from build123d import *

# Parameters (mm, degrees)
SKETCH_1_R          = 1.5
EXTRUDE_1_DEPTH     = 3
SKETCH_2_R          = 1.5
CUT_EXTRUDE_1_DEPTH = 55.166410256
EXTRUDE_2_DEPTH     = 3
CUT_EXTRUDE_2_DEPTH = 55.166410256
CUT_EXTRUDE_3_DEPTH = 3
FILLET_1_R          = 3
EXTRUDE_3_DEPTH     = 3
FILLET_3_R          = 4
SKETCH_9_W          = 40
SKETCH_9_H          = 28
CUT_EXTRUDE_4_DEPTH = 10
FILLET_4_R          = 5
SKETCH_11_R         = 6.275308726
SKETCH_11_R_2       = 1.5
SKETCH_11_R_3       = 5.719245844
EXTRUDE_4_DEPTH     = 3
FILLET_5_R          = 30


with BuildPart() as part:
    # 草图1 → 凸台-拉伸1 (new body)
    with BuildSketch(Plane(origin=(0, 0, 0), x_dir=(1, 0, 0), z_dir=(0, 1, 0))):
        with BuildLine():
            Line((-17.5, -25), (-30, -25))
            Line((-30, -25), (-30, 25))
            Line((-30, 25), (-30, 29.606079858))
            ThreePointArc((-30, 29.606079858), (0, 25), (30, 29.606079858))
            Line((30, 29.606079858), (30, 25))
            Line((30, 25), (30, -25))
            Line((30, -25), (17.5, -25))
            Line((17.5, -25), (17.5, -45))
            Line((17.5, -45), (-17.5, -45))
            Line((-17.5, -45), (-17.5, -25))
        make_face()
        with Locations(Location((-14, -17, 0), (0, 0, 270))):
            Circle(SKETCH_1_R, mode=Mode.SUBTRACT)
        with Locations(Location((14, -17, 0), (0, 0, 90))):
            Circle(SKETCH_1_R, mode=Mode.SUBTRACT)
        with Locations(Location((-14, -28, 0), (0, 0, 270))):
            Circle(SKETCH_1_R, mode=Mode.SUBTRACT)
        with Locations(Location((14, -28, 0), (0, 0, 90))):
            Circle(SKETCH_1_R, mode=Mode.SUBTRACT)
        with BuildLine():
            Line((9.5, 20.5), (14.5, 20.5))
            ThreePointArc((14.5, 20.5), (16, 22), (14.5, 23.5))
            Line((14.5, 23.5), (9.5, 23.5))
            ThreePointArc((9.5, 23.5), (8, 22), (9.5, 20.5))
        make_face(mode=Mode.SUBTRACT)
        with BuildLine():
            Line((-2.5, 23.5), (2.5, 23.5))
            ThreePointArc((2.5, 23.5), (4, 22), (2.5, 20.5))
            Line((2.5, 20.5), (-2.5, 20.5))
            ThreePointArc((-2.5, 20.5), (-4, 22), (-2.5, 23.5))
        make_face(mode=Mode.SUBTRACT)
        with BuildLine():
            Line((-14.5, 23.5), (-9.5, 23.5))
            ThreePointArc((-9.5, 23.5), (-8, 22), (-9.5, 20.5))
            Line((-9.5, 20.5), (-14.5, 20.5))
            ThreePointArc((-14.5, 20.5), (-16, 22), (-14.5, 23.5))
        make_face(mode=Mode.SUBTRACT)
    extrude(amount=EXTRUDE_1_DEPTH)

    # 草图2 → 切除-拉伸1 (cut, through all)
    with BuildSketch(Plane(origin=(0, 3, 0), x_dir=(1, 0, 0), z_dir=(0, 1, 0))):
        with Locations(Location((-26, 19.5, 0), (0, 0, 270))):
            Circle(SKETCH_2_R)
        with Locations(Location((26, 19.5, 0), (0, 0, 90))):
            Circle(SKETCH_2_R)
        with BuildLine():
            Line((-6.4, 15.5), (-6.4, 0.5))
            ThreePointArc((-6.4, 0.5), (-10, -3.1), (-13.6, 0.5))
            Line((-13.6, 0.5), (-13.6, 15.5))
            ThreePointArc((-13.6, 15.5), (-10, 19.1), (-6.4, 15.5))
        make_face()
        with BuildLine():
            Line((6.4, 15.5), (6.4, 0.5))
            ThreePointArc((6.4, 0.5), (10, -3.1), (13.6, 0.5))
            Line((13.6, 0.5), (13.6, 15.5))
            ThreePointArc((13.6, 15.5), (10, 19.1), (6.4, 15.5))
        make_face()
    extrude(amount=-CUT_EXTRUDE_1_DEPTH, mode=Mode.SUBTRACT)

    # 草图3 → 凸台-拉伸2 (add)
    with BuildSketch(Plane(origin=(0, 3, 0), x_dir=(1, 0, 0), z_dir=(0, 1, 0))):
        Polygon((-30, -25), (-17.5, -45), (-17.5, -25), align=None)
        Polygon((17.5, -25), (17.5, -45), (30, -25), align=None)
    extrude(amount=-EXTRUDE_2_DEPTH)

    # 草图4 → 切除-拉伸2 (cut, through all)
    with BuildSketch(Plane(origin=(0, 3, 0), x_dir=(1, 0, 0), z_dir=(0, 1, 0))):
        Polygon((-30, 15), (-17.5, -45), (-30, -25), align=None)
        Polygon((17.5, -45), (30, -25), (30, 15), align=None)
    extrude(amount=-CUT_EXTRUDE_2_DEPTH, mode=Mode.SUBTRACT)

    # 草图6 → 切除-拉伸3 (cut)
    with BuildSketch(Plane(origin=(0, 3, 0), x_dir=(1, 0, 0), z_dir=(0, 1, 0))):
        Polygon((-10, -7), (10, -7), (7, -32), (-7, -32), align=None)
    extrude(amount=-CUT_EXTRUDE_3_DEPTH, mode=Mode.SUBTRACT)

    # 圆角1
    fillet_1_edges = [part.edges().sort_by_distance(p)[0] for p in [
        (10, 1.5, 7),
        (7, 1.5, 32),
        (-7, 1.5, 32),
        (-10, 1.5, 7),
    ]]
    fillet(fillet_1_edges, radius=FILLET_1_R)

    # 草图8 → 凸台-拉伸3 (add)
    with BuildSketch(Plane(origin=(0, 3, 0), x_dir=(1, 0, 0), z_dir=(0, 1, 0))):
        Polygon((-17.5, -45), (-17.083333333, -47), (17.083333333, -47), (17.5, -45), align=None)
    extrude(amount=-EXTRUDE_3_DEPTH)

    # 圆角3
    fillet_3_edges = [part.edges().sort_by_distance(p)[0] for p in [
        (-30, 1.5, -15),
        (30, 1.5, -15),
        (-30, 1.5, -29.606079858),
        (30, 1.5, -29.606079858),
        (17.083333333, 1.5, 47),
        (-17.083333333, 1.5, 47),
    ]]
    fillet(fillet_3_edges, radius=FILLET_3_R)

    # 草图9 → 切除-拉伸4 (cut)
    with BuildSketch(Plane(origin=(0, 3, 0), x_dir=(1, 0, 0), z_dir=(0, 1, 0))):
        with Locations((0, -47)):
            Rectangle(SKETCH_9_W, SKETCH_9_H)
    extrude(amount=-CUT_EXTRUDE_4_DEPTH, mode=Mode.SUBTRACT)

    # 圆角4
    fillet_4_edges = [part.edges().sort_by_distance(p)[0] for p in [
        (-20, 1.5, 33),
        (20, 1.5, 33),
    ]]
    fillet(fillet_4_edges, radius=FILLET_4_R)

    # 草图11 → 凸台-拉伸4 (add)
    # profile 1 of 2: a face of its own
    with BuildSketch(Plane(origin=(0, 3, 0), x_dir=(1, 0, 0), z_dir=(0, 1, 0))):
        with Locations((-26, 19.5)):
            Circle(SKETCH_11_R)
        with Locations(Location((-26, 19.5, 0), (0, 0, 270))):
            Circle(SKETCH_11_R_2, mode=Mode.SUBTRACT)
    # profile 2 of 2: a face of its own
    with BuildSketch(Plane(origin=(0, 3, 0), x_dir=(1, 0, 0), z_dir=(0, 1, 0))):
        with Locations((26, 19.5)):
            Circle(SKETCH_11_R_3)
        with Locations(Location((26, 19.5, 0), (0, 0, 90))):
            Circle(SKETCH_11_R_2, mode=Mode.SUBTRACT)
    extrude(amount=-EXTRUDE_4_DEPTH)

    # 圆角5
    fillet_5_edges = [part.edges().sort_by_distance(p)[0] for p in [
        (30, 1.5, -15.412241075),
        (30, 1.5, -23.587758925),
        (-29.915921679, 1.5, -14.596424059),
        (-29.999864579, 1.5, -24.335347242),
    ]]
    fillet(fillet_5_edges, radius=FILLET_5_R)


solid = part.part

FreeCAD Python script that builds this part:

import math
import FreeCAD as App
import Part
import Sketcher
from FreeCAD import Vector
Q = App.Units.Quantity


def edges_at(feature, points):
    """Names of the edges that pass closest to the given points."""
    edges = feature.Shape.Edges
    near = lambda p: min(range(len(edges)), key=lambda i: edges[i].distToShape(Part.Vertex(*p))[0])
    return sorted({f"Edge{near(p) + 1}" for p in points})


def add_polygon(sketch, points):
    """Adds a closed chain of lines whose ends are joined by coincident constraints."""
    first, n = sketch.GeometryCount, len(points)
    for a, b in zip(points, points[1:] + points[:1]):
        sketch.addGeometry(Part.LineSegment(App.Vector(*a, 0), App.Vector(*b, 0)), False)
    for i in range(n):
        sketch.addConstraint(Sketcher.Constraint("Coincident", first + i, 2, first + (i + 1) % n, 1))

doc = App.newDocument("Part")
body = doc.addObject("PartDesign::Body", "Body")

sketch1 = doc.addObject("Sketcher::SketchObject", "Sketch")
body.addObject(sketch1)
sketch1.AttachmentSupport = (doc.XZ_Plane, [""])
sketch1.MapMode = "FlatFace"
sketch1.addGeometry([
    Part.LineSegment(Vector(-30, 25, 0), Vector(-17.5, 25, 0)),
    Part.LineSegment(Vector(-17.5, 25, 0), Vector(-17.5, 45, 0)),
    Part.LineSegment(Vector(-17.5, 45, 0), Vector(17.5, 45, 0)),
    Part.LineSegment(Vector(17.5, 45, 0), Vector(17.5, 25, 0)),
    Part.LineSegment(Vector(17.5, 25, 0), Vector(30, 25, 0)),
    Part.LineSegment(Vector(30, 25, 0), Vector(30, -29.6, 0)),
    Part.ArcOfCircle(Part.Circle(Vector(0, -125, 0), Vector(0, 0, 1), 100), math.radians(73), math.radians(107)),
    Part.LineSegment(Vector(-30, -29.6, 0), Vector(-30, 25, 0)),
    Part.Circle(Vector(14, 28, 0), Vector(0, 0, 1), 1.5),
    Part.Circle(Vector(14, 17, 0), Vector(0, 0, 1), 1.5),
    Part.Circle(Vector(-14, 28, 0), Vector(0, 0, 1), 1.5),
    Part.Circle(Vector(-14, 17, 0), Vector(0, 0, 1), 1.5),
    Part.ArcOfCircle(Part.Circle(Vector(9.5, -22, 0), Vector(0, 0, 1), 1.5), math.radians(90), math.radians(270)),
    Part.LineSegment(Vector(9.5, -23.5, 0), Vector(14.5, -23.5, 0)),
    Part.ArcOfCircle(Part.Circle(Vector(14.5, -22, 0), Vector(0, 0, 1), 1.5), math.radians(-90), math.radians(90)),
    Part.LineSegment(Vector(14.5, -20.5, 0), Vector(9.5, -20.5, 0)),
    Part.LineSegment(Vector(-2.5, -23.5, 0), Vector(2.5, -23.5, 0)),
    Part.ArcOfCircle(Part.Circle(Vector(2.5, -22, 0), Vector(0, 0, 1), 1.5), math.radians(-90), math.radians(90)),
    Part.LineSegment(Vector(2.5, -20.5, 0), Vector(-2.5, -20.5, 0)),
    Part.ArcOfCircle(Part.Circle(Vector(-2.5, -22, 0), Vector(0, 0, 1), 1.5), math.radians(90), math.radians(270)),
    Part.LineSegment(Vector(-14.5, -23.5, 0), Vector(-9.5, -23.5, 0)),
    Part.ArcOfCircle(Part.Circle(Vector(-9.5, -22, 0), Vector(0, 0, 1), 1.5), math.radians(-90), math.radians(90)),
    Part.LineSegment(Vector(-9.5, -20.5, 0), Vector(-14.5, -20.5, 0)),
    Part.ArcOfCircle(Part.Circle(Vector(-14.5, -22, 0), Vector(0, 0, 1), 1.5), math.radians(90), math.radians(270)),
], False)
sketch1.addConstraint([
    Sketcher.Constraint("Coincident", 0, 2, 1, 1),
    Sketcher.Constraint("Coincident", 1, 2, 2, 1),
    Sketcher.Constraint("Coincident", 2, 2, 3, 1),
    Sketcher.Constraint("Coincident", 3, 2, 4, 1),
    Sketcher.Constraint("Coincident", 4, 2, 5, 1),
    Sketcher.Constraint("Coincident", 5, 2, 6, 1),
    Sketcher.Constraint("Coincident", 6, 2, 7, 1),
    Sketcher.Constraint("Coincident", 7, 2, 0, 1),
    Sketcher.Constraint("Tangent", 12, 2, 13, 1),
    Sketcher.Constraint("Tangent", 13, 2, 14, 1),
    Sketcher.Constraint("Tangent", 14, 2, 15, 1),
    Sketcher.Constraint("Tangent", 15, 2, 12, 1),
    Sketcher.Constraint("Tangent", 16, 2, 17, 1),
    Sketcher.Constraint("Tangent", 17, 2, 18, 1),
    Sketcher.Constraint("Tangent", 18, 2, 19, 1),
    Sketcher.Constraint("Tangent", 19, 2, 16, 1),
    Sketcher.Constraint("Tangent", 20, 2, 21, 1),
    Sketcher.Constraint("Tangent", 21, 2, 22, 1),
    Sketcher.Constraint("Tangent", 22, 2, 23, 1),
    Sketcher.Constraint("Tangent", 23, 2, 20, 1),
    Sketcher.Constraint("Horizontal", 0),
    Sketcher.Constraint("Vertical", 1),
    Sketcher.Constraint("Horizontal", 2),
    Sketcher.Constraint("Vertical", 3),
    Sketcher.Constraint("Horizontal", 4),
    Sketcher.Constraint("Vertical", 5),
    Sketcher.Constraint("Vertical", 7),
    Sketcher.Constraint("Horizontal", 13),
    Sketcher.Constraint("Horizontal", 15),
    Sketcher.Constraint("Horizontal", 16),
    Sketcher.Constraint("Horizontal", 18),
    Sketcher.Constraint("Horizontal", 20),
    Sketcher.Constraint("Horizontal", 22),
    Sketcher.Constraint("Equal", 8, 9),
    Sketcher.Constraint("Equal", 9, 10),
    Sketcher.Constraint("Equal", 10, 11),
    Sketcher.Constraint("Equal", 11, 12),
    Sketcher.Constraint("Equal", 14, 17),
    Sketcher.Constraint("Equal", 19, 21),
    Sketcher.Constraint("Symmetric", 8, 3, 10, 3, -2),
    Sketcher.Constraint("Symmetric", 9, 3, 11, 3, -2),
    Sketcher.Constraint("Symmetric", 12, 3, 21, 3, -2),
    Sketcher.Constraint("Symmetric", 0, 2, 3, 2, -2),
    Sketcher.Constraint("Symmetric", 5, 2, 6, 2, -2),
    Sketcher.Constraint("Horizontal", 14, 3, 17, 3),
    Sketcher.Constraint("Vertical", 8, 3, 9, 3),
    Sketcher.Constraint("Equal", 15, 16),
    Sketcher.Constraint("Equal", 18, 20),
    Sketcher.Constraint("Diameter", 8, Q("3 mm")),
    Sketcher.Constraint("Radius", 6, Q("100 mm")),
    Sketcher.Constraint("DistanceX", 2, 1, 2, 2, Q("35 mm")),
    Sketcher.Constraint("DistanceX", 13, 1, 13, 2, Q("5 mm")),
    Sketcher.Constraint("DistanceY", 1, 1, 1, 2, Q("20 mm")),
    Sketcher.Constraint("DistanceX", 0, 1, 0, 2, Q("12.5 mm")),
    Sketcher.Constraint("DistanceY", 6, 3, -1, 1, Q("125 mm")),
    Sketcher.Constraint("DistanceX", -1, 1, 8, 3, Q("14 mm")),
    Sketcher.Constraint("DistanceY", -1, 1, 8, 3, Q("28 mm")),
    Sketcher.Constraint("DistanceY", -1, 1, 9, 3, Q("17 mm")),
    Sketcher.Constraint("DistanceY", 12, 3, -1, 1, Q("22 mm")),
    Sketcher.Constraint("DistanceY", -1, 1, 0, 2, Q("25 mm")),
    Sketcher.Constraint("DistanceX", 17, 3, 12, 3, Q("7 mm")),
    Sketcher.Constraint("DistanceX", 21, 3, 19, 3, Q("7 mm")),
])
pad1 = doc.addObject("PartDesign::Pad", "Pad")
body.addObject(pad1)
pad1.Profile = sketch1
pad1.Length = 3
pad1.Reversed = True

sketch2 = doc.addObject("Sketcher::SketchObject", "Sketch001")
body.addObject(sketch2)
sketch2.AttachmentSupport = (doc.XZ_Plane, [""])
sketch2.MapMode = "FlatFace"
sketch2.AttachmentOffset = App.Placement(Vector(0, 0, -3), App.Rotation())
sketch2.addGeometry([
    Part.Circle(Vector(-26, -19.5, 0), Vector(0, 0, 1), 1.5),
    Part.Circle(Vector(26, -19.5, 0), Vector(0, 0, 1), 1.5),
    Part.LineSegment(Vector(-6.4, -0.5, 0), Vector(-6.4, -15.5, 0)),
    Part.ArcOfCircle(Part.Circle(Vector(-10, -15.5, 0), Vector(0, 0, 1), 3.6), math.radians(180), math.radians(360)),
    Part.LineSegment(Vector(-13.6, -15.5, 0), Vector(-13.6, -0.5, 0)),
    Part.ArcOfCircle(Part.Circle(Vector(-10, -0.5, 0), Vector(0, 0, 1), 3.6), math.radians(0), math.radians(180)),
    Part.LineSegment(Vector(6.4, -15.5, 0), Vector(6.4, -0.5, 0)),
    Part.ArcOfCircle(Part.Circle(Vector(10, -0.5, 0), Vector(0, 0, 1), 3.6), math.radians(0), math.radians(180)),
    Part.LineSegment(Vector(13.6, -0.5, 0), Vector(13.6, -15.5, 0)),
    Part.ArcOfCircle(Part.Circle(Vector(10, -15.5, 0), Vector(0, 0, 1), 3.6), math.radians(180), math.radians(360)),
], False)
sketch2.addConstraint([
    Sketcher.Constraint("Tangent", 2, 2, 3, 2),
    Sketcher.Constraint("Tangent", 3, 1, 4, 1),
    Sketcher.Constraint("Tangent", 4, 2, 5, 2),
    Sketcher.Constraint("Tangent", 5, 1, 2, 1),
    Sketcher.Constraint("Tangent", 6, 2, 7, 2),
    Sketcher.Constraint("Tangent", 7, 1, 8, 1),
    Sketcher.Constraint("Tangent", 8, 2, 9, 2),
    Sketcher.Constraint("Tangent", 9, 1, 6, 1),
    Sketcher.Constraint("Vertical", 2),
    Sketcher.Constraint("Vertical", 4),
    Sketcher.Constraint("Vertical", 6),
    Sketcher.Constraint("Vertical", 8),
    Sketcher.Constraint("Equal", 0, 1),
    Sketcher.Constraint("Equal", 5, 7),
    Sketcher.Constraint("Symmetric", 0, 3, 1, 3, -2),
    Sketcher.Constraint("Symmetric", 5, 3, 7, 3, -2),
    Sketcher.Constraint("Horizontal", 3, 3, 9, 3),
    Sketcher.Constraint("Diameter", 0, Q("3 mm")),
    Sketcher.Constraint("Radius", 3, Q("3.6 mm")),
    Sketcher.Constraint("DistanceY", 2, 2, 2, 1, Q("15 mm")),
    Sketcher.Constraint("DistanceX", 0, 3, -1, 1, Q("26 mm")),
    Sketcher.Constraint("DistanceX", 3, 3, -1, 1, Q("10 mm")),
    Sketcher.Constraint("DistanceY", 0, 3, 3, 3, Q("4 mm")),
    Sketcher.Constraint("DistanceY", 0, 3, -1, 1, Q("19.5 mm")),
])
pocket1 = doc.addObject("PartDesign::Pocket", "Pocket")
body.addObject(pocket1)
pocket1.Profile = sketch2
pocket1.Type = "ThroughAll"
pocket1.Reversed = True

sketch3 = doc.addObject("Sketcher::SketchObject", "Sketch002")
body.addObject(sketch3)
sketch3.AttachmentSupport = (doc.XZ_Plane, [""])
sketch3.MapMode = "FlatFace"
sketch3.AttachmentOffset = App.Placement(Vector(0, 0, -3), App.Rotation())
add_polygon(sketch3, [(-30, 25), (-18, 45), (-18, 25)])
add_polygon(sketch3, [(18, 25), (18, 45), (30, 25)])
sketch3.addConstraint([
    Sketcher.Constraint("Vertical", 1),
    Sketcher.Constraint("Horizontal", 2),
    Sketcher.Constraint("Vertical", 3),
    Sketcher.Constraint("Horizontal", 5),
    Sketcher.Constraint("Symmetric", 0, 2, 3, 2, -2),
    Sketcher.Constraint("Symmetric", 2, 2, 4, 2, -2),
    Sketcher.Constraint("DistanceY", 1, 2, 1, 1, Q("20 mm")),
    Sketcher.Constraint("DistanceX", 2, 2, 2, 1, Q("12.5 mm")),
    Sketcher.Constraint("DistanceY", -1, 1, 0, 2, Q("45 mm")),
    Sketcher.Constraint("DistanceX", 2, 2, -1, 1, Q("30 mm")),
])
pad2 = doc.addObject("PartDesign::Pad", "Pad001")
body.addObject(pad2)
pad2.Profile = sketch3
pad2.Length = 3

sketch4 = doc.addObject("Sketcher::SketchObject", "Sketch003")
body.addObject(sketch4)
sketch4.AttachmentSupport = (doc.XZ_Plane, [""])
sketch4.MapMode = "FlatFace"
sketch4.AttachmentOffset = App.Placement(Vector(0, 0, -3), App.Rotation())
add_polygon(sketch4, [(-18, 45), (-30, -15), (-30, 25)])
add_polygon(sketch4, [(18, 45), (30, 25), (30, -15)])
sketch4.addConstraint([
    Sketcher.Constraint("Vertical", 1),
    Sketcher.Constraint("Vertical", 4),
    Sketcher.Constraint("Symmetric", 1, 2, 3, 2, -2),
    Sketcher.Constraint("Symmetric", 2, 2, 5, 2, -2),
    Sketcher.Constraint("Horizontal", 0, 2, 4, 2),
    Sketcher.Constraint("DistanceY", 1, 1, 1, 2, Q("40 mm")),
    Sketcher.Constraint("DistanceX", 0, 2, -1, 1, Q("30 mm")),
    Sketcher.Constraint("DistanceY", 0, 2, -1, 1, Q("15 mm")),
    Sketcher.Constraint("DistanceY", -1, 1, 2, 2, Q("45 mm")),
    Sketcher.Constraint("DistanceX", 2, 2, 5, 2, Q("35 mm")),
])
pocket2 = doc.addObject("PartDesign::Pocket", "Pocket001")
body.addObject(pocket2)
pocket2.Profile = sketch4
pocket2.Type = "ThroughAll"
pocket2.Reversed = True

sketch5 = doc.addObject("Sketcher::SketchObject", "Sketch004")
body.addObject(sketch5)
sketch5.AttachmentSupport = (doc.XZ_Plane, [""])
sketch5.MapMode = "FlatFace"
sketch5.AttachmentOffset = App.Placement(Vector(0, 0, -3), App.Rotation())
add_polygon(sketch5, [(10, 7), (-10, 7), (-7, 32), (7, 32)])
sketch5.addConstraint([
    Sketcher.Constraint("Horizontal", 0),
    Sketcher.Constraint("Horizontal", 2),
    Sketcher.Constraint("Equal", 1, 3),
    Sketcher.Constraint("DistanceX", 0, 2, 0, 1, Q("20 mm")),
    Sketcher.Constraint("DistanceX", 2, 1, 2, 2, Q("14 mm")),
    Sketcher.Constraint("DistanceX", 0, 2, -1, 1, Q("10 mm")),
    Sketcher.Constraint("DistanceY", -1, 1, 0, 2, Q("7 mm")),
    Sketcher.Constraint("DistanceY", -1, 1, 1, 2, Q("32 mm")),
])
pocket3 = doc.addObject("PartDesign::Pocket", "Pocket002")
body.addObject(pocket3)
pocket3.Profile = sketch5
pocket3.Length = 3
pocket3.Reversed = True
doc.recompute()

fillet = doc.addObject("PartDesign::Fillet", "Fillet")
body.addObject(fillet)
fillet.Base = (pocket3, edges_at(pocket3, [
    (10, 1.5, 7),
    (7, 1.5, 32),
    (-7, 1.5, 32),
    (-10, 1.5, 7),
]))
fillet.Radius = 3

sketch6 = doc.addObject("Sketcher::SketchObject", "Sketch005")
body.addObject(sketch6)
sketch6.AttachmentSupport = (doc.XZ_Plane, [""])
sketch6.MapMode = "FlatFace"
sketch6.AttachmentOffset = App.Placement(Vector(0, 0, -3), App.Rotation())
add_polygon(sketch6, [(-17.5, 45), (-17.1, 47), (17.1, 47), (17.5, 45)])
sketch6.addConstraint([
    Sketcher.Constraint("Horizontal", 1),
    Sketcher.Constraint("Horizontal", 3),
    Sketcher.Constraint("Equal", 0, 2),
    Sketcher.Constraint("DistanceX", 3, 2, 3, 1, Q("35 mm")),
    Sketcher.Constraint("DistanceY", -1, 1, 0, 2, Q("47 mm")),
    Sketcher.Constraint("DistanceY", -1, 1, 2, 2, Q("45 mm")),
    Sketcher.Constraint("DistanceX", -1, 1, 2, 2, Q("17.5 mm")),
    Sketcher.Constraint("Distance", 0, Q("2.042942 mm")),
])
pad3 = doc.addObject("PartDesign::Pad", "Pad002")
body.addObject(pad3)
pad3.Profile = sketch6
pad3.Length = 3
doc.recompute()

fillet2 = doc.addObject("PartDesign::Fillet", "Fillet001")
body.addObject(fillet2)
fillet2.Base = (pad3, edges_at(pad3, [
    (-30, 1.5, -15),
    (30, 1.5, -15),
    (-30, 1.5, -29.606),
    (30, 1.5, -29.606),
    (17.083, 1.5, 47),
    (-17.083, 1.5, 47),
]))
fillet2.Radius = 4

sketch7 = doc.addObject("Sketcher::SketchObject", "Sketch006")
body.addObject(sketch7)
sketch7.AttachmentSupport = (doc.XZ_Plane, [""])
sketch7.MapMode = "FlatFace"
sketch7.AttachmentOffset = App.Placement(Vector(0, 0, -3), App.Rotation())
add_polygon(sketch7, [(-20, 33), (-20, 61), (20, 61), (20, 33)])
sketch7.addConstraint([
    Sketcher.Constraint("Vertical", 0),
    Sketcher.Constraint("Horizontal", 1),
    Sketcher.Constraint("Vertical", 2),
    Sketcher.Constraint("Horizontal", 3),
    Sketcher.Constraint("DistanceX", 1, 1, 1, 2, Q("40 mm")),
    Sketcher.Constraint("DistanceY", 0, 1, 0, 2, Q("28 mm")),
    Sketcher.Constraint("DistanceX", 0, 2, -1, 1, Q("20 mm")),
    Sketcher.Constraint("DistanceY", -1, 1, 0, 2, Q("61 mm")),
])
pocket4 = doc.addObject("PartDesign::Pocket", "Pocket003")
body.addObject(pocket4)
pocket4.Profile = sketch7
pocket4.Length = 10
pocket4.Reversed = True
doc.recompute()

fillet3 = doc.addObject("PartDesign::Fillet", "Fillet002")
body.addObject(fillet3)
fillet3.Base = (pocket4, edges_at(pocket4, [(-20, 1.5, 33), (20, 1.5, 33)]))
fillet3.Radius = 5

sketch8 = doc.addObject("Sketcher::SketchObject", "Sketch007")
body.addObject(sketch8)
sketch8.AttachmentSupport = (doc.XZ_Plane, [""])
sketch8.MapMode = "FlatFace"
sketch8.AttachmentOffset = App.Placement(Vector(0, 0, -3), App.Rotation())
sketch8.addGeometry([
    Part.Circle(Vector(-26, -19.5, 0), Vector(0, 0, 1), 6.3),
    Part.Circle(Vector(-26, -19.5, 0), Vector(0, 0, 1), 1.5),
    Part.Circle(Vector(26, -19.5, 0), Vector(0, 0, 1), 5.7),
    Part.Circle(Vector(26, -19.5, 0), Vector(0, 0, 1), 1.5),
], False)
sketch8.addConstraint([
    Sketcher.Constraint("Coincident", 1, 3, 0, 3),
    Sketcher.Constraint("Coincident", 3, 3, 2, 3),
    Sketcher.Constraint("Equal", 1, 3),
    Sketcher.Constraint("Symmetric", 0, 3, 2, 3, -2),
    Sketcher.Constraint("Diameter", 1, Q("3 mm")),
    Sketcher.Constraint("DistanceX", 0, 3, -1, 1, Q("26 mm")),
    Sketcher.Constraint("DistanceY", 0, 3, -1, 1, Q("19.5 mm")),
    Sketcher.Constraint("Diameter", 2, Q("11.438492 mm")),
    Sketcher.Constraint("Diameter", 0, Q("12.550617 mm")),
])
pad4 = doc.addObject("PartDesign::Pad", "Pad003")
body.addObject(pad4)
pad4.Profile = sketch8
pad4.Length = 3
doc.recompute()

fillet4 = doc.addObject("PartDesign::Fillet", "Fillet003")
body.addObject(fillet4)
fillet4.Base = (pad4, edges_at(pad4, [
    (30, 1.5, -15.412),
    (30, 1.5, -23.588),
    (-29.916, 1.5, -14.596),
    (-30, 1.5, -24.335),
]))
fillet4.Radius = 30

doc.recompute()
